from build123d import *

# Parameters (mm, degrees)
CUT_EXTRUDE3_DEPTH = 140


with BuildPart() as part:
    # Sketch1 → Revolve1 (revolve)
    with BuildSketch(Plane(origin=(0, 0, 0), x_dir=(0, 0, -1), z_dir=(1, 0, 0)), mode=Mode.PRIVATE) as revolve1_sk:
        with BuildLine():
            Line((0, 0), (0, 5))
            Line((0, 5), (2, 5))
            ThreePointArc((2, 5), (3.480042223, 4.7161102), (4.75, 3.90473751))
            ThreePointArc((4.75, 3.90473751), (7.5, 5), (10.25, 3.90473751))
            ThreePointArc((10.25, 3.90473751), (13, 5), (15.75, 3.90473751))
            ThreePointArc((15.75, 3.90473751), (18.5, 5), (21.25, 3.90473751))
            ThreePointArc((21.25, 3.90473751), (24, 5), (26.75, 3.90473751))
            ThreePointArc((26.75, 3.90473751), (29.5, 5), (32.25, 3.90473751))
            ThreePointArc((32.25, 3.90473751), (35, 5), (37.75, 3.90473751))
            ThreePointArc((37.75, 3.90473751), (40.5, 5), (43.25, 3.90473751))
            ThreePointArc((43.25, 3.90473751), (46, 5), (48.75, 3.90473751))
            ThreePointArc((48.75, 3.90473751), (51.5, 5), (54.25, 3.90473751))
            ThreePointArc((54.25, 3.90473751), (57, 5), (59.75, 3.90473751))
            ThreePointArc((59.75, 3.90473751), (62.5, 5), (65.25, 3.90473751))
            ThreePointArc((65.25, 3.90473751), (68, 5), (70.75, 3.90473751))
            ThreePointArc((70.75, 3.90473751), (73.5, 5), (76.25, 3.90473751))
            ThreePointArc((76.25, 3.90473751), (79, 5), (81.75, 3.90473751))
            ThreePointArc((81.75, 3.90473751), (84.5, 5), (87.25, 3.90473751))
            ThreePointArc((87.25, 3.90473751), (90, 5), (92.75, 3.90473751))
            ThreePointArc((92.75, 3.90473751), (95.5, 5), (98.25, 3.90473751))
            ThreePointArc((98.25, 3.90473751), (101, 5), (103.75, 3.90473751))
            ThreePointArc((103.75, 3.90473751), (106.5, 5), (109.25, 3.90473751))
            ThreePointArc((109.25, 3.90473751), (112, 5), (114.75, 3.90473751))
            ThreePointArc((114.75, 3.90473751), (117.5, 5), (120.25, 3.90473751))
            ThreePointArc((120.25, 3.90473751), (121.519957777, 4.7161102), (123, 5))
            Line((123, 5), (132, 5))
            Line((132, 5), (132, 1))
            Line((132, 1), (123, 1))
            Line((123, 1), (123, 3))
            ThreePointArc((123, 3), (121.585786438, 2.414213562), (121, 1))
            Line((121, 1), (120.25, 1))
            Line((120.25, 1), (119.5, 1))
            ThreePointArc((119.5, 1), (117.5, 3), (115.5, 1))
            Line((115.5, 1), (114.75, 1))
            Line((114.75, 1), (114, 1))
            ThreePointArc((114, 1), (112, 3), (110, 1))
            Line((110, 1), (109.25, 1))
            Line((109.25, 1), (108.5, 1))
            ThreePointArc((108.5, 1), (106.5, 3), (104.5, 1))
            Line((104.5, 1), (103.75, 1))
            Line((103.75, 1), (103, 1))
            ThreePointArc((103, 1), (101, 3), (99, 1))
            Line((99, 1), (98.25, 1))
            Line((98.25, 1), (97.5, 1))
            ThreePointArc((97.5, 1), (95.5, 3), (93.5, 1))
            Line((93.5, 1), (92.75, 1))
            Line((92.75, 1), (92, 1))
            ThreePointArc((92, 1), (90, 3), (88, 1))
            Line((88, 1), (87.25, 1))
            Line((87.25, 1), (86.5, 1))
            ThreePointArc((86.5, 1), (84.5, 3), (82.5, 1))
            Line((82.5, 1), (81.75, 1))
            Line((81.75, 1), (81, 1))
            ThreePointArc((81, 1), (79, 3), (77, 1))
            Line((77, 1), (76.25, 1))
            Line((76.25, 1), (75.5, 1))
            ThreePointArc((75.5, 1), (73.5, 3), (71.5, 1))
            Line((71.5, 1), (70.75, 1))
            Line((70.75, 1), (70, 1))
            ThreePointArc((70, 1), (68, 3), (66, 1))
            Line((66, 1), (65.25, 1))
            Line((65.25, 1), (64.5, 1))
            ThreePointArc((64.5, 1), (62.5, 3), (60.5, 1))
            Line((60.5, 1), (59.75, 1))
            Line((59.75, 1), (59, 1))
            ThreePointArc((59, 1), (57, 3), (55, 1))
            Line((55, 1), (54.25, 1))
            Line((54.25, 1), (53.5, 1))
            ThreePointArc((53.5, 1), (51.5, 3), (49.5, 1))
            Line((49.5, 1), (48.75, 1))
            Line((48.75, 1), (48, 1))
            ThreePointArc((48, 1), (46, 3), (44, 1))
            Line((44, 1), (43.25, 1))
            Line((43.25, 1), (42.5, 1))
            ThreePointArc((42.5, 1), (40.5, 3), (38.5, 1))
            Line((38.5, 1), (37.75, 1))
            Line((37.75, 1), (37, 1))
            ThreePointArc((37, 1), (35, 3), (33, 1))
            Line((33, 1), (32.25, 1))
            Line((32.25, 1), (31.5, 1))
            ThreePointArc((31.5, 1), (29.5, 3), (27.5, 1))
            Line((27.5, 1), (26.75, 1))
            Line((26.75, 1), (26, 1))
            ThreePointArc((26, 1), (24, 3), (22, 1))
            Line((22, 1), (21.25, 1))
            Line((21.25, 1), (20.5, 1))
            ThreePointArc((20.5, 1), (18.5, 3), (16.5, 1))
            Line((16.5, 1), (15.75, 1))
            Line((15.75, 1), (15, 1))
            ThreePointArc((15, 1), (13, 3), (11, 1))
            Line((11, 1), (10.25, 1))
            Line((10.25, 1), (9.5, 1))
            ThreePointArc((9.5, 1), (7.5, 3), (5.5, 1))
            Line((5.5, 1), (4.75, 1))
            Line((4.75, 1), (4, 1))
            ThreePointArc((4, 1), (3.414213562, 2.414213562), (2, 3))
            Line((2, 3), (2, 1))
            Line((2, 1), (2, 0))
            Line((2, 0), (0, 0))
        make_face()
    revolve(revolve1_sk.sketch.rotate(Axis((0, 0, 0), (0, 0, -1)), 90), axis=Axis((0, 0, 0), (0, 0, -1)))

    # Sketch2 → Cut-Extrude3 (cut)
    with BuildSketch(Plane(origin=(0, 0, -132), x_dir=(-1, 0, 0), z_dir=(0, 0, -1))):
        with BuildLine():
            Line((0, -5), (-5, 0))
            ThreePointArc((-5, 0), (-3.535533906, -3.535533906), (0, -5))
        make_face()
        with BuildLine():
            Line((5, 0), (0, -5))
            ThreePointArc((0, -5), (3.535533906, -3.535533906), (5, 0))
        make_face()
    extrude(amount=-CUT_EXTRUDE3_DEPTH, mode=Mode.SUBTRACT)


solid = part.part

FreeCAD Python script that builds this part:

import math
import FreeCAD as App
import Part
import Sketcher

V = App.Vector

doc = App.newDocument("Part")
body = doc.addObject("PartDesign::Body", "Body")

# Sketch on YZ plane
sketch1 = body.newObject("Sketcher::SketchObject", "Sketch")
sketch1.AttachmentSupport = (doc.getObject("YZ_Plane"), [""])
sketch1.MapMode = "FlatFace"
sketch1.addGeometry([
    Part.LineSegment(V(5, 0, 0), V(0, 0, 0)),  # 0
    Part.LineSegment(V(0, 0, 0), V(0, -2, 0)),  # 1
    Part.LineSegment(V(0, -2, 0), V(3, -2, 0)),  # 2
    Part.ArcOfCircle(Part.Circle(V(1, -2, 0), V(0, 0, 1), 2), math.radians(-90), math.radians(0)),  # 3
    Part.LineSegment(V(1, -4, 0), V(1, -5.5, 0)),  # 4
    Part.ArcOfCircle(Part.Circle(V(1, -7.5, 0), V(0, 0, 1), 2), math.radians(-90), math.radians(90)),  # 5
    Part.LineSegment(V(1, -9.5, 0), V(1, -11, 0)),  # 6
    Part.ArcOfCircle(Part.Circle(V(1, -13, 0), V(0, 0, 1), 2), math.radians(-90), math.radians(90)),  # 7
    Part.LineSegment(V(1, -15, 0), V(1, -16.5, 0)),  # 8
    Part.ArcOfCircle(Part.Circle(V(1, -18.5, 0), V(0, 0, 1), 2), math.radians(-90), math.radians(90)),  # 9
    Part.LineSegment(V(1, -20.5, 0), V(1, -22, 0)),  # 10
    Part.ArcOfCircle(Part.Circle(V(1, -24, 0), V(0, 0, 1), 2), math.radians(-90), math.radians(90)),  # 11
    Part.LineSegment(V(1, -26, 0), V(1, -27.5, 0)),  # 12
    Part.ArcOfCircle(Part.Circle(V(1, -29.5, 0), V(0, 0, 1), 2), math.radians(-90), math.radians(90)),  # 13
    Part.LineSegment(V(1, -31.5, 0), V(1, -33, 0)),  # 14
    Part.ArcOfCircle(Part.Circle(V(1, -35, 0), V(0, 0, 1), 2), math.radians(-90), math.radians(90)),  # 15
    Part.LineSegment(V(1, -37, 0), V(1, -38.5, 0)),  # 16
    Part.ArcOfCircle(Part.Circle(V(1, -40.5, 0), V(0, 0, 1), 2), math.radians(-90), math.radians(90)),  # 17
    Part.LineSegment(V(1, -42.5, 0), V(1, -44, 0)),  # 18
    Part.ArcOfCircle(Part.Circle(V(1, -46, 0), V(0, 0, 1), 2), math.radians(-90), math.radians(90)),  # 19
    Part.LineSegment(V(1, -48, 0), V(1, -49.5, 0)),  # 20
    Part.ArcOfCircle(Part.Circle(V(1, -51.5, 0), V(0, 0, 1), 2), math.radians(-90), math.radians(90)),  # 21
    Part.LineSegment(V(1, -53.5, 0), V(1, -55, 0)),  # 22
    Part.ArcOfCircle(Part.Circle(V(1, -57, 0), V(0, 0, 1), 2), math.radians(-90), math.radians(90)),  # 23
    Part.LineSegment(V(1, -59, 0), V(1, -60.5, 0)),  # 24
    Part.ArcOfCircle(Part.Circle(V(1, -62.5, 0), V(0, 0, 1), 2), math.radians(-90), math.radians(90)),  # 25
    Part.LineSegment(V(1, -64.5, 0), V(1, -66, 0)),  # 26
    Part.ArcOfCircle(Part.Circle(V(1, -68, 0), V(0, 0, 1), 2), math.radians(-90), math.radians(90)),  # 27
    Part.LineSegment(V(1, -70, 0), V(1, -71.5, 0)),  # 28
    Part.ArcOfCircle(Part.Circle(V(1, -73.5, 0), V(0, 0, 1), 2), math.radians(-90), math.radians(90)),  # 29
    Part.LineSegment(V(1, -75.5, 0), V(1, -77, 0)),  # 30
    Part.ArcOfCircle(Part.Circle(V(1, -79, 0), V(0, 0, 1), 2), math.radians(-90), math.radians(90)),  # 31
    Part.LineSegment(V(1, -81, 0), V(1, -82.5, 0)),  # 32
    Part.ArcOfCircle(Part.Circle(V(1, -84.5, 0), V(0, 0, 1), 2), math.radians(-90), math.radians(90)),  # 33
    Part.LineSegment(V(1, -86.5, 0), V(1, -88, 0)),  # 34
    Part.ArcOfCircle(Part.Circle(V(1, -90, 0), V(0, 0, 1), 2), math.radians(-90), math.radians(90)),  # 35
    Part.LineSegment(V(1, -92, 0), V(1, -93.5, 0)),  # 36
    Part.ArcOfCircle(Part.Circle(V(1, -95.5, 0), V(0, 0, 1), 2), math.radians(-90), math.radians(90)),  # 37
    Part.LineSegment(V(1, -97.5, 0), V(1, -99, 0)),  # 38
    Part.ArcOfCircle(Part.Circle(V(1, -101, 0), V(0, 0, 1), 2), math.radians(-90), math.radians(90)),  # 39
    Part.LineSegment(V(1, -103, 0), V(1, -104.5, 0)),  # 40
    Part.ArcOfCircle(Part.Circle(V(1, -106.5, 0), V(0, 0, 1), 2), math.radians(-90), math.radians(90)),  # 41
    Part.LineSegment(V(1, -108.5, 0), V(1, -110, 0)),  # 42
    Part.ArcOfCircle(Part.Circle(V(1, -112, 0), V(0, 0, 1), 2), math.radians(-90), math.radians(90)),  # 43
    Part.LineSegment(V(1, -114, 0), V(1, -115.5, 0)),  # 44
    Part.ArcOfCircle(Part.Circle(V(1, -117.5, 0), V(0, 0, 1), 2), math.radians(-90), math.radians(90)),  # 45
    Part.LineSegment(V(1, -119.5, 0), V(1, -121, 0)),  # 46
    Part.ArcOfCircle(Part.Circle(V(1, -123, 0), V(0, 0, 1), 2), math.radians(0), math.radians(90)),  # 47
    Part.LineSegment(V(3, -123, 0), V(1, -123, 0)),  # 48
    Part.LineSegment(V(1, -123, 0), V(1, -132, 0)),  # 49
    Part.LineSegment(V(1, -132, 0), V(5, -132, 0)),  # 50
    Part.LineSegment(V(5, -132, 0), V(5, -123, 0)),  # 51
    Part.ArcOfCircle(Part.Circle(V(1, -123, 0), V(0, 0, 1), 4), math.radians(0), math.radians(43)),  # 52
    Part.ArcOfCircle(Part.Circle(V(1, -117.5, 0), V(0, 0, 1), 4), math.radians(-43), math.radians(43)),  # 53
    Part.ArcOfCircle(Part.Circle(V(1, -112, 0), V(0, 0, 1), 4), math.radians(-43), math.radians(43)),  # 54
    Part.ArcOfCircle(Part.Circle(V(1, -106.5, 0), V(0, 0, 1), 4), math.radians(-43), math.radians(43)),  # 55
    Part.ArcOfCircle(Part.Circle(V(1, -101, 0), V(0, 0, 1), 4), math.radians(-43), math.radians(43)),  # 56
    Part.ArcOfCircle(Part.Circle(V(1, -95.5, 0), V(0, 0, 1), 4), math.radians(-43), math.radians(43)),  # 57
    Part.ArcOfCircle(Part.Circle(V(1, -90, 0), V(0, 0, 1), 4), math.radians(-43), math.radians(43)),  # 58
    Part.ArcOfCircle(Part.Circle(V(1, -84.5, 0), V(0, 0, 1), 4), math.radians(-43), math.radians(43)),  # 59
    Part.ArcOfCircle(Part.Circle(V(1, -79, 0), V(0, 0, 1), 4), math.radians(-43), math.radians(43)),  # 60
    Part.ArcOfCircle(Part.Circle(V(1, -73.5, 0), V(0, 0, 1), 4), math.radians(-43), math.radians(43)),  # 61
    Part.ArcOfCircle(Part.Circle(V(1, -68, 0), V(0, 0, 1), 4), math.radians(-43), math.radians(43)),  # 62
    Part.ArcOfCircle(Part.Circle(V(1, -62.5, 0), V(0, 0, 1), 4), math.radians(-43), math.radians(43)),  # 63
    Part.ArcOfCircle(Part.Circle(V(1, -57, 0), V(0, 0, 1), 4), math.radians(-43), math.radians(43)),  # 64
    Part.ArcOfCircle(Part.Circle(V(1, -51.5, 0), V(0, 0, 1), 4), math.radians(-43), math.radians(43)),  # 65
    Part.ArcOfCircle(Part.Circle(V(1, -46, 0), V(0, 0, 1), 4), math.radians(-43), math.radians(43)),  # 66
    Part.ArcOfCircle(Part.Circle(V(1, -40.5, 0), V(0, 0, 1), 4), math.radians(-43), math.radians(43)),  # 67
    Part.ArcOfCircle(Part.Circle(V(1, -35, 0), V(0, 0, 1), 4), math.radians(-43), math.radians(43)),  # 68
    Part.ArcOfCircle(Part.Circle(V(1, -29.5, 0), V(0, 0, 1), 4), math.radians(-43), math.radians(43)),  # 69
    Part.ArcOfCircle(Part.Circle(V(1, -24, 0), V(0, 0, 1), 4), math.radians(-43), math.radians(43)),  # 70
    Part.ArcOfCircle(Part.Circle(V(1, -18.5, 0), V(0, 0, 1), 4), math.radians(-43), math.radians(43)),  # 71
    Part.ArcOfCircle(Part.Circle(V(1, -13, 0), V(0, 0, 1), 4), math.radians(-43), math.radians(43)),  # 72
    Part.ArcOfCircle(Part.Circle(V(1, -7.5, 0), V(0, 0, 1), 4), math.radians(-43), math.radians(43)),  # 73
    Part.ArcOfCircle(Part.Circle(V(1, -2, 0), V(0, 0, 1), 4), math.radians(-43), math.radians(0)),  # 74
    Part.LineSegment(V(5, -2, 0), V(5, 0, 0)),  # 75
], False)
sketch1.addConstraint([
    Sketcher.Constraint("Coincident", 0, 2, 1, 1),
    Sketcher.Constraint("Coincident", 1, 2, 2, 1),
    Sketcher.Constraint("Coincident", 2, 2, 3, 2),
    Sketcher.Constraint("Coincident", 3, 1, 4, 1),
    Sketcher.Constraint("Coincident", 4, 2, 5, 2),
    Sketcher.Constraint("Coincident", 5, 1, 6, 1),
    Sketcher.Constraint("Coincident", 6, 2, 7, 2),
    Sketcher.Constraint("Coincident", 7, 1, 8, 1),
    Sketcher.Constraint("Coincident", 8, 2, 9, 2),
    Sketcher.Constraint("Coincident", 9, 1, 10, 1),
    Sketcher.Constraint("Coincident", 10, 2, 11, 2),
    Sketcher.Constraint("Coincident", 11, 1, 12, 1),
    Sketcher.Constraint("Coincident", 12, 2, 13, 2),
    Sketcher.Constraint("Coincident", 13, 1, 14, 1),
    Sketcher.Constraint("Coincident", 14, 2, 15, 2),
    Sketcher.Constraint("Coincident", 15, 1, 16, 1),
    Sketcher.Constraint("Coincident", 16, 2, 17, 2),
    Sketcher.Constraint("Coincident", 17, 1, 18, 1),
    Sketcher.Constraint("Coincident", 18, 2, 19, 2),
    Sketcher.Constraint("Coincident", 19, 1, 20, 1),
    Sketcher.Constraint("Coincident", 20, 2, 21, 2),
    Sketcher.Constraint("Coincident", 21, 1, 22, 1),
    Sketcher.Constraint("Coincident", 22, 2, 23, 2),
    Sketcher.Constraint("Coincident", 23, 1, 24, 1),
    Sketcher.Constraint("Coincident", 24, 2, 25, 2),
    Sketcher.Constraint("Coincident", 25, 1, 26, 1),
    Sketcher.Constraint("Coincident", 26, 2, 27, 2),
    Sketcher.Constraint("Coincident", 27, 1, 28, 1),
    Sketcher.Constraint("Coincident", 28, 2, 29, 2),
    Sketcher.Constraint("Coincident", 29, 1, 30, 1),
    Sketcher.Constraint("Coincident", 30, 2, 31, 2),
    Sketcher.Constraint("Coincident", 31, 1, 32, 1),
    Sketcher.Constraint("Coincident", 32, 2, 33, 2),
    Sketcher.Constraint("Coincident", 33, 1, 34, 1),
    Sketcher.Constraint("Coincident", 34, 2, 35, 2),
    Sketcher.Constraint("Coincident", 35, 1, 36, 1),
    Sketcher.Constraint("Coincident", 36, 2, 37, 2),
    Sketcher.Constraint("Coincident", 37, 1, 38, 1),
    Sketcher.Constraint("Coincident", 38, 2, 39, 2),
    Sketcher.Constraint("Coincident", 39, 1, 40, 1),
    Sketcher.Constraint("Coincident", 40, 2, 41, 2),
    Sketcher.Constraint("Coincident", 41, 1, 42, 1),
    Sketcher.Constraint("Coincident", 42, 2, 43, 2),
    Sketcher.Constraint("Coincident", 43, 1, 44, 1),
    Sketcher.Constraint("Coincident", 44, 2, 45, 2),
    Sketcher.Constraint("Coincident", 45, 1, 46, 1),
    Sketcher.Constraint("Coincident", 46, 2, 47, 2),
    Sketcher.Constraint("Coincident", 47, 1, 48, 1),
    Sketcher.Constraint("Coincident", 48, 2, 49, 1),
    Sketcher.Constraint("Coincident", 49, 2, 50, 1),
    Sketcher.Constraint("Coincident", 50, 2, 51, 1),
    Sketcher.Constraint("Tangent", 51, 2, 52, 1),
    Sketcher.Constraint("Coincident", 52, 2, 53, 1),
    Sketcher.Constraint("Coincident", 53, 2, 54, 1),
    Sketcher.Constraint("Coincident", 54, 2, 55, 1),
    Sketcher.Constraint("Coincident", 55, 2, 56, 1),
    Sketcher.Constraint("Coincident", 56, 2, 57, 1),
    Sketcher.Constraint("Coincident", 57, 2, 58, 1),
    Sketcher.Constraint("Coincident", 58, 2, 59, 1),
    Sketcher.Constraint("Coincident", 59, 2, 60, 1),
    Sketcher.Constraint("Coincident", 60, 2, 61, 1),
    Sketcher.Constraint("Coincident", 61, 2, 62, 1),
    Sketcher.Constraint("Coincident", 62, 2, 63, 1),
    Sketcher.Constraint("Coincident", 63, 2, 64, 1),
    Sketcher.Constraint("Coincident", 64, 2, 65, 1),
    Sketcher.Constraint("Coincident", 65, 2, 66, 1),
    Sketcher.Constraint("Coincident", 66, 2, 67, 1),
    Sketcher.Constraint("Coincident", 67, 2, 68, 1),
    Sketcher.Constraint("Coincident", 68, 2, 69, 1),
    Sketcher.Constraint("Coincident", 69, 2, 70, 1),
    Sketcher.Constraint("Coincident", 70, 2, 71, 1),
    Sketcher.Constraint("Coincident", 71, 2, 72, 1),
    Sketcher.Constraint("Coincident", 72, 2, 73, 1),
    Sketcher.Constraint("Coincident", 73, 2, 74, 1),
    Sketcher.Constraint("Tangent", 74, 2, 75, 1),
    Sketcher.Constraint("Coincident", 75, 2, 0, 1),
    Sketcher.Constraint("Horizontal", 0),
    Sketcher.Constraint("Vertical", 1),
    Sketcher.Constraint("Horizontal", 2),
    Sketcher.Constraint("Vertical", 4),
    Sketcher.Constraint("Vertical", 6),
    Sketcher.Constraint("Vertical", 8),
    Sketcher.Constraint("Vertical", 10),
    Sketcher.Constraint("Vertical", 12),
    Sketcher.Constraint("Vertical", 14),
    Sketcher.Constraint("Vertical", 16),
    Sketcher.Constraint("Vertical", 18),
    Sketcher.Constraint("Vertical", 20),
    Sketcher.Constraint("Vertical", 22),
    Sketcher.Constraint("Vertical", 24),
    Sketcher.Constraint("Vertical", 26),
    Sketcher.Constraint("Vertical", 28),
    Sketcher.Constraint("Vertical", 30),
    Sketcher.Constraint("Vertical", 32),
    Sketcher.Constraint("Vertical", 34),
    Sketcher.Constraint("Vertical", 36),
    Sketcher.Constraint("Vertical", 38),
    Sketcher.Constraint("Vertical", 40),
    Sketcher.Constraint("Vertical", 42),
    Sketcher.Constraint("Vertical", 44),
    Sketcher.Constraint("Vertical", 46),
    Sketcher.Constraint("Horizontal", 48),
    Sketcher.Constraint("Vertical", 49),
    Sketcher.Constraint("Horizontal", 50),
    Sketcher.Constraint("Vertical", 51),
    Sketcher.Constraint("Vertical", 75),
    Sketcher.Constraint("Coincident", 0, 2, -1, 1),
    Sketcher.Constraint("Coincident", 52, 3, 47, 3),
    Sketcher.Constraint("Coincident", 53, 3, 45, 3),
    Sketcher.Constraint("Coincident", 54, 3, 43, 3),
    Sketcher.Constraint("Coincident", 55, 3, 41, 3),
    Sketcher.Constraint("Coincident", 56, 3, 39, 3),
    Sketcher.Constraint("Coincident", 57, 3, 37, 3),
    Sketcher.Constraint("Coincident", 58, 3, 35, 3),
    Sketcher.Constraint("Coincident", 59, 3, 33, 3),
    Sketcher.Constraint("Coincident", 60, 3, 31, 3),
    Sketcher.Constraint("Coincident", 61, 3, 29, 3),
    Sketcher.Constraint("Coincident", 62, 3, 27, 3),
    Sketcher.Constraint("Coincident", 63, 3, 25, 3),
    Sketcher.Constraint("Coincident", 64, 3, 23, 3),
    Sketcher.Constraint("Coincident", 65, 3, 21, 3),
    Sketcher.Constraint("Coincident", 66, 3, 19, 3),
    Sketcher.Constraint("Coincident", 67, 3, 17, 3),
    Sketcher.Constraint("Coincident", 68, 3, 15, 3),
    Sketcher.Constraint("Coincident", 69, 3, 13, 3),
    Sketcher.Constraint("Coincident", 70, 3, 11, 3),
    Sketcher.Constraint("Coincident", 71, 3, 9, 3),
    Sketcher.Constraint("Coincident", 72, 3, 7, 3),
    Sketcher.Constraint("Coincident", 73, 3, 5, 3),
    Sketcher.Constraint("Coincident", 74, 3, 3, 3),
    Sketcher.Constraint("Coincident", 48, 2, 47, 3),
    Sketcher.Constraint("Equal", 3, 5),
    Sketcher.Constraint("Equal", 5, 7),
    Sketcher.Constraint("Equal", 7, 9),
    Sketcher.Constraint("Equal", 9, 11),
    Sketcher.Constraint("Equal", 11, 13),
    Sketcher.Constraint("Equal", 13, 15),
    Sketcher.Constraint("Equal", 15, 17),
    Sketcher.Constraint("Equal", 17, 19),
    Sketcher.Constraint("Equal", 19, 21),
    Sketcher.Constraint("Equal", 21, 23),
    Sketcher.Constraint("Equal", 23, 25),
    Sketcher.Constraint("Equal", 25, 27),
    Sketcher.Constraint("Equal", 27, 29),
    Sketcher.Constraint("Equal", 29, 31),
    Sketcher.Constraint("Equal", 31, 33),
    Sketcher.Constraint("Equal", 33, 35),
    Sketcher.Constraint("Equal", 35, 37),
    Sketcher.Constraint("Equal", 37, 39),
    Sketcher.Constraint("Equal", 39, 41),
    Sketcher.Constraint("Equal", 41, 43),
    Sketcher.Constraint("Equal", 43, 45),
    Sketcher.Constraint("Equal", 45, 47),
    Sketcher.Constraint("Equal", 52, 53),
    Sketcher.Constraint("Equal", 53, 54),
    Sketcher.Constraint("Equal", 54, 55),
    Sketcher.Constraint("Equal", 55, 56),
    Sketcher.Constraint("Equal", 56, 57),
    Sketcher.Constraint("Equal", 57, 58),
    Sketcher.Constraint("Equal", 58, 59),
    Sketcher.Constraint("Equal", 59, 60),
    Sketcher.Constraint("Equal", 60, 61),
    Sketcher.Constraint("Equal", 61, 62),
    Sketcher.Constraint("Equal", 62, 63),
    Sketcher.Constraint("Equal", 63, 64),
    Sketcher.Constraint("Equal", 64, 65),
    Sketcher.Constraint("Equal", 65, 66),
    Sketcher.Constraint("Equal", 66, 67),
    Sketcher.Constraint("Equal", 67, 68),
    Sketcher.Constraint("Equal", 68, 69),
    Sketcher.Constraint("Equal", 69, 70),
    Sketcher.Constraint("Equal", 70, 71),
    Sketcher.Constraint("Equal", 71, 72),
    Sketcher.Constraint("Equal", 72, 73),
    Sketcher.Constraint("Equal", 73, 74),
    Sketcher.Constraint("Horizontal", 74, 3, 1, 2),
    Sketcher.Constraint("Vertical", 3, 3, 5, 3),
    Sketcher.Constraint("Vertical", 5, 3, 7, 3),
    Sketcher.Constraint("Vertical", 7, 3, 9, 3),
    Sketcher.Constraint("Vertical", 9, 3, 11, 3),
    Sketcher.Constraint("Vertical", 11, 3, 13, 3),
    Sketcher.Constraint("Vertical", 13, 3, 15, 3),
    Sketcher.Constraint("Vertical", 15, 3, 17, 3),
    Sketcher.Constraint("Vertical", 17, 3, 19, 3),
    Sketcher.Constraint("Vertical", 19, 3, 21, 3),
    Sketcher.Constraint("Vertical", 21, 3, 23, 3),
    Sketcher.Constraint("Vertical", 23, 3, 25, 3),
    Sketcher.Constraint("Vertical", 25, 3, 27, 3),
    Sketcher.Constraint("Vertical", 27, 3, 29, 3),
    Sketcher.Constraint("Vertical", 29, 3, 31, 3),
    Sketcher.Constraint("Vertical", 31, 3, 33, 3),
    Sketcher.Constraint("Vertical", 33, 3, 35, 3),
    Sketcher.Constraint("Vertical", 35, 3, 37, 3),
    Sketcher.Constraint("Vertical", 37, 3, 39, 3),
    Sketcher.Constraint("Vertical", 39, 3, 41, 3),
    Sketcher.Constraint("Vertical", 41, 3, 43, 3),
    Sketcher.Constraint("Vertical", 43, 3, 45, 3),
    Sketcher.Constraint("Vertical", 45, 3, 47, 3),
    Sketcher.Constraint("Vertical", 74, 3, 3, 1),
    Sketcher.Constraint("Vertical", 4, 2, 5, 1),
    Sketcher.Constraint("Vertical", 6, 2, 7, 1),
    Sketcher.Constraint("Vertical", 8, 2, 9, 1),
    Sketcher.Constraint("Vertical", 10, 2, 11, 1),
    Sketcher.Constraint("Vertical", 12, 2, 13, 1),
    Sketcher.Constraint("Vertical", 14, 2, 15, 1),
    Sketcher.Constraint("Vertical", 16, 2, 17, 1),
    Sketcher.Constraint("Vertical", 18, 2, 19, 1),
    Sketcher.Constraint("Vertical", 20, 2, 21, 1),
    Sketcher.Constraint("Vertical", 22, 2, 23, 1),
    Sketcher.Constraint("Vertical", 24, 2, 25, 1),
    Sketcher.Constraint("Vertical", 26, 2, 27, 1),
    Sketcher.Constraint("Vertical", 28, 2, 29, 1),
    Sketcher.Constraint("Vertical", 30, 2, 31, 1),
    Sketcher.Constraint("Vertical", 32, 2, 33, 1),
    Sketcher.Constraint("Vertical", 34, 2, 35, 1),
    Sketcher.Constraint("Vertical", 36, 2, 37, 1),
    Sketcher.Constraint("Vertical", 38, 2, 39, 1),
    Sketcher.Constraint("Vertical", 40, 2, 41, 1),
    Sketcher.Constraint("Vertical", 42, 2, 43, 1),
    Sketcher.Constraint("Vertical", 44, 2, 45, 1),
    Sketcher.Constraint("Vertical", 52, 2, 53, 2),
    Sketcher.Constraint("Vertical", 53, 2, 54, 2),
    Sketcher.Constraint("Vertical", 54, 2, 55, 2),
    Sketcher.Constraint("Vertical", 55, 2, 56, 2),
    Sketcher.Constraint("Vertical", 56, 2, 57, 2),
    Sketcher.Constraint("Vertical", 57, 2, 58, 2),
    Sketcher.Constraint("Vertical", 58, 2, 59, 2),
    Sketcher.Constraint("Vertical", 59, 2, 60, 2),
    Sketcher.Constraint("Vertical", 60, 2, 61, 2),
    Sketcher.Constraint("Vertical", 61, 2, 62, 2),
    Sketcher.Constraint("Vertical", 62, 2, 63, 2),
    Sketcher.Constraint("Vertical", 63, 2, 64, 2),
    Sketcher.Constraint("Vertical", 64, 2, 65, 2),
    Sketcher.Constraint("Vertical", 65, 2, 66, 2),
    Sketcher.Constraint("Vertical", 66, 2, 67, 2),
    Sketcher.Constraint("Vertical", 67, 2, 68, 2),
    Sketcher.Constraint("Vertical", 68, 2, 69, 2),
    Sketcher.Constraint("Vertical", 69, 2, 70, 2),
    Sketcher.Constraint("Vertical", 70, 2, 71, 2),
    Sketcher.Constraint("Vertical", 71, 2, 72, 2),
    Sketcher.Constraint("Vertical", 72, 2, 73, 2),
    Sketcher.Constraint("Equal", 48, 1),
    Sketcher.Constraint("Radius", 3, 2.0),
    Sketcher.Constraint("Radius", 52, 4.0),
    Sketcher.Constraint("DistanceX", 0, 2, 0, 1, 5.0),
    Sketcher.Constraint("DistanceY", 49, 2, 49, 1, 9.0),
    Sketcher.Constraint("DistanceY", 4, 2, 4, 1, 1.5),
])
revolution = body.newObject("PartDesign::Revolution", "Revolution")
revolution.Profile = sketch1
revolution.ReferenceAxis = (sketch1, ["V_Axis"])
revolution.Angle = 360

# Sketch on XY plane
sketch2 = body.newObject("Sketcher::SketchObject", "Sketch001")
sketch2.AttachmentSupport = (doc.getObject("XY_Plane"), [""])
sketch2.MapMode = "FlatFace"
sketch2.AttachmentOffset = App.Placement(V(0, 0, -132), App.Rotation())
sketch2.addGeometry([
    Part.LineSegment(V(0, -5, 0), V(5, 0, 0)),
    Part.ArcOfCircle(Part.Circle(V(0, 0, 0), V(0, 0, 1), 5), math.radians(-90), math.radians(0)),
    Part.LineSegment(V(-5, 0, 0), V(0, -5, 0)),
    Part.ArcOfCircle(Part.Circle(V(0, 0, 0), V(0, 0, 1), 5), math.radians(180), math.radians(270)),
], False)
sketch2.addConstraint([
    Sketcher.Constraint("Coincident", 0, 1, 1, 1),
    Sketcher.Constraint("Coincident", 1, 2, 0, 2),
    Sketcher.Constraint("Coincident", 2, 1, 3, 1),
    Sketcher.Constraint("Coincident", 3, 2, 2, 2),
    Sketcher.Constraint("Coincident", 1, 3, -1, 1),
    Sketcher.Constraint("Coincident", 3, 3, -1, 1),
    Sketcher.Constraint("Coincident", 3, 2, 0, 1),
    Sketcher.Constraint("PointOnObject", 0, 1, -2),
    Sketcher.Constraint("PointOnObject", 1, 2, -1),
    Sketcher.Constraint("PointOnObject", 2, 1, -1),
    Sketcher.Constraint("Radius", 1, 5.0),
])
pocket1 = body.newObject("PartDesign::Pocket", "Pocket")
pocket1.Profile = sketch2
pocket1.Length = 140
pocket1.Reversed = True

doc.recompute()
